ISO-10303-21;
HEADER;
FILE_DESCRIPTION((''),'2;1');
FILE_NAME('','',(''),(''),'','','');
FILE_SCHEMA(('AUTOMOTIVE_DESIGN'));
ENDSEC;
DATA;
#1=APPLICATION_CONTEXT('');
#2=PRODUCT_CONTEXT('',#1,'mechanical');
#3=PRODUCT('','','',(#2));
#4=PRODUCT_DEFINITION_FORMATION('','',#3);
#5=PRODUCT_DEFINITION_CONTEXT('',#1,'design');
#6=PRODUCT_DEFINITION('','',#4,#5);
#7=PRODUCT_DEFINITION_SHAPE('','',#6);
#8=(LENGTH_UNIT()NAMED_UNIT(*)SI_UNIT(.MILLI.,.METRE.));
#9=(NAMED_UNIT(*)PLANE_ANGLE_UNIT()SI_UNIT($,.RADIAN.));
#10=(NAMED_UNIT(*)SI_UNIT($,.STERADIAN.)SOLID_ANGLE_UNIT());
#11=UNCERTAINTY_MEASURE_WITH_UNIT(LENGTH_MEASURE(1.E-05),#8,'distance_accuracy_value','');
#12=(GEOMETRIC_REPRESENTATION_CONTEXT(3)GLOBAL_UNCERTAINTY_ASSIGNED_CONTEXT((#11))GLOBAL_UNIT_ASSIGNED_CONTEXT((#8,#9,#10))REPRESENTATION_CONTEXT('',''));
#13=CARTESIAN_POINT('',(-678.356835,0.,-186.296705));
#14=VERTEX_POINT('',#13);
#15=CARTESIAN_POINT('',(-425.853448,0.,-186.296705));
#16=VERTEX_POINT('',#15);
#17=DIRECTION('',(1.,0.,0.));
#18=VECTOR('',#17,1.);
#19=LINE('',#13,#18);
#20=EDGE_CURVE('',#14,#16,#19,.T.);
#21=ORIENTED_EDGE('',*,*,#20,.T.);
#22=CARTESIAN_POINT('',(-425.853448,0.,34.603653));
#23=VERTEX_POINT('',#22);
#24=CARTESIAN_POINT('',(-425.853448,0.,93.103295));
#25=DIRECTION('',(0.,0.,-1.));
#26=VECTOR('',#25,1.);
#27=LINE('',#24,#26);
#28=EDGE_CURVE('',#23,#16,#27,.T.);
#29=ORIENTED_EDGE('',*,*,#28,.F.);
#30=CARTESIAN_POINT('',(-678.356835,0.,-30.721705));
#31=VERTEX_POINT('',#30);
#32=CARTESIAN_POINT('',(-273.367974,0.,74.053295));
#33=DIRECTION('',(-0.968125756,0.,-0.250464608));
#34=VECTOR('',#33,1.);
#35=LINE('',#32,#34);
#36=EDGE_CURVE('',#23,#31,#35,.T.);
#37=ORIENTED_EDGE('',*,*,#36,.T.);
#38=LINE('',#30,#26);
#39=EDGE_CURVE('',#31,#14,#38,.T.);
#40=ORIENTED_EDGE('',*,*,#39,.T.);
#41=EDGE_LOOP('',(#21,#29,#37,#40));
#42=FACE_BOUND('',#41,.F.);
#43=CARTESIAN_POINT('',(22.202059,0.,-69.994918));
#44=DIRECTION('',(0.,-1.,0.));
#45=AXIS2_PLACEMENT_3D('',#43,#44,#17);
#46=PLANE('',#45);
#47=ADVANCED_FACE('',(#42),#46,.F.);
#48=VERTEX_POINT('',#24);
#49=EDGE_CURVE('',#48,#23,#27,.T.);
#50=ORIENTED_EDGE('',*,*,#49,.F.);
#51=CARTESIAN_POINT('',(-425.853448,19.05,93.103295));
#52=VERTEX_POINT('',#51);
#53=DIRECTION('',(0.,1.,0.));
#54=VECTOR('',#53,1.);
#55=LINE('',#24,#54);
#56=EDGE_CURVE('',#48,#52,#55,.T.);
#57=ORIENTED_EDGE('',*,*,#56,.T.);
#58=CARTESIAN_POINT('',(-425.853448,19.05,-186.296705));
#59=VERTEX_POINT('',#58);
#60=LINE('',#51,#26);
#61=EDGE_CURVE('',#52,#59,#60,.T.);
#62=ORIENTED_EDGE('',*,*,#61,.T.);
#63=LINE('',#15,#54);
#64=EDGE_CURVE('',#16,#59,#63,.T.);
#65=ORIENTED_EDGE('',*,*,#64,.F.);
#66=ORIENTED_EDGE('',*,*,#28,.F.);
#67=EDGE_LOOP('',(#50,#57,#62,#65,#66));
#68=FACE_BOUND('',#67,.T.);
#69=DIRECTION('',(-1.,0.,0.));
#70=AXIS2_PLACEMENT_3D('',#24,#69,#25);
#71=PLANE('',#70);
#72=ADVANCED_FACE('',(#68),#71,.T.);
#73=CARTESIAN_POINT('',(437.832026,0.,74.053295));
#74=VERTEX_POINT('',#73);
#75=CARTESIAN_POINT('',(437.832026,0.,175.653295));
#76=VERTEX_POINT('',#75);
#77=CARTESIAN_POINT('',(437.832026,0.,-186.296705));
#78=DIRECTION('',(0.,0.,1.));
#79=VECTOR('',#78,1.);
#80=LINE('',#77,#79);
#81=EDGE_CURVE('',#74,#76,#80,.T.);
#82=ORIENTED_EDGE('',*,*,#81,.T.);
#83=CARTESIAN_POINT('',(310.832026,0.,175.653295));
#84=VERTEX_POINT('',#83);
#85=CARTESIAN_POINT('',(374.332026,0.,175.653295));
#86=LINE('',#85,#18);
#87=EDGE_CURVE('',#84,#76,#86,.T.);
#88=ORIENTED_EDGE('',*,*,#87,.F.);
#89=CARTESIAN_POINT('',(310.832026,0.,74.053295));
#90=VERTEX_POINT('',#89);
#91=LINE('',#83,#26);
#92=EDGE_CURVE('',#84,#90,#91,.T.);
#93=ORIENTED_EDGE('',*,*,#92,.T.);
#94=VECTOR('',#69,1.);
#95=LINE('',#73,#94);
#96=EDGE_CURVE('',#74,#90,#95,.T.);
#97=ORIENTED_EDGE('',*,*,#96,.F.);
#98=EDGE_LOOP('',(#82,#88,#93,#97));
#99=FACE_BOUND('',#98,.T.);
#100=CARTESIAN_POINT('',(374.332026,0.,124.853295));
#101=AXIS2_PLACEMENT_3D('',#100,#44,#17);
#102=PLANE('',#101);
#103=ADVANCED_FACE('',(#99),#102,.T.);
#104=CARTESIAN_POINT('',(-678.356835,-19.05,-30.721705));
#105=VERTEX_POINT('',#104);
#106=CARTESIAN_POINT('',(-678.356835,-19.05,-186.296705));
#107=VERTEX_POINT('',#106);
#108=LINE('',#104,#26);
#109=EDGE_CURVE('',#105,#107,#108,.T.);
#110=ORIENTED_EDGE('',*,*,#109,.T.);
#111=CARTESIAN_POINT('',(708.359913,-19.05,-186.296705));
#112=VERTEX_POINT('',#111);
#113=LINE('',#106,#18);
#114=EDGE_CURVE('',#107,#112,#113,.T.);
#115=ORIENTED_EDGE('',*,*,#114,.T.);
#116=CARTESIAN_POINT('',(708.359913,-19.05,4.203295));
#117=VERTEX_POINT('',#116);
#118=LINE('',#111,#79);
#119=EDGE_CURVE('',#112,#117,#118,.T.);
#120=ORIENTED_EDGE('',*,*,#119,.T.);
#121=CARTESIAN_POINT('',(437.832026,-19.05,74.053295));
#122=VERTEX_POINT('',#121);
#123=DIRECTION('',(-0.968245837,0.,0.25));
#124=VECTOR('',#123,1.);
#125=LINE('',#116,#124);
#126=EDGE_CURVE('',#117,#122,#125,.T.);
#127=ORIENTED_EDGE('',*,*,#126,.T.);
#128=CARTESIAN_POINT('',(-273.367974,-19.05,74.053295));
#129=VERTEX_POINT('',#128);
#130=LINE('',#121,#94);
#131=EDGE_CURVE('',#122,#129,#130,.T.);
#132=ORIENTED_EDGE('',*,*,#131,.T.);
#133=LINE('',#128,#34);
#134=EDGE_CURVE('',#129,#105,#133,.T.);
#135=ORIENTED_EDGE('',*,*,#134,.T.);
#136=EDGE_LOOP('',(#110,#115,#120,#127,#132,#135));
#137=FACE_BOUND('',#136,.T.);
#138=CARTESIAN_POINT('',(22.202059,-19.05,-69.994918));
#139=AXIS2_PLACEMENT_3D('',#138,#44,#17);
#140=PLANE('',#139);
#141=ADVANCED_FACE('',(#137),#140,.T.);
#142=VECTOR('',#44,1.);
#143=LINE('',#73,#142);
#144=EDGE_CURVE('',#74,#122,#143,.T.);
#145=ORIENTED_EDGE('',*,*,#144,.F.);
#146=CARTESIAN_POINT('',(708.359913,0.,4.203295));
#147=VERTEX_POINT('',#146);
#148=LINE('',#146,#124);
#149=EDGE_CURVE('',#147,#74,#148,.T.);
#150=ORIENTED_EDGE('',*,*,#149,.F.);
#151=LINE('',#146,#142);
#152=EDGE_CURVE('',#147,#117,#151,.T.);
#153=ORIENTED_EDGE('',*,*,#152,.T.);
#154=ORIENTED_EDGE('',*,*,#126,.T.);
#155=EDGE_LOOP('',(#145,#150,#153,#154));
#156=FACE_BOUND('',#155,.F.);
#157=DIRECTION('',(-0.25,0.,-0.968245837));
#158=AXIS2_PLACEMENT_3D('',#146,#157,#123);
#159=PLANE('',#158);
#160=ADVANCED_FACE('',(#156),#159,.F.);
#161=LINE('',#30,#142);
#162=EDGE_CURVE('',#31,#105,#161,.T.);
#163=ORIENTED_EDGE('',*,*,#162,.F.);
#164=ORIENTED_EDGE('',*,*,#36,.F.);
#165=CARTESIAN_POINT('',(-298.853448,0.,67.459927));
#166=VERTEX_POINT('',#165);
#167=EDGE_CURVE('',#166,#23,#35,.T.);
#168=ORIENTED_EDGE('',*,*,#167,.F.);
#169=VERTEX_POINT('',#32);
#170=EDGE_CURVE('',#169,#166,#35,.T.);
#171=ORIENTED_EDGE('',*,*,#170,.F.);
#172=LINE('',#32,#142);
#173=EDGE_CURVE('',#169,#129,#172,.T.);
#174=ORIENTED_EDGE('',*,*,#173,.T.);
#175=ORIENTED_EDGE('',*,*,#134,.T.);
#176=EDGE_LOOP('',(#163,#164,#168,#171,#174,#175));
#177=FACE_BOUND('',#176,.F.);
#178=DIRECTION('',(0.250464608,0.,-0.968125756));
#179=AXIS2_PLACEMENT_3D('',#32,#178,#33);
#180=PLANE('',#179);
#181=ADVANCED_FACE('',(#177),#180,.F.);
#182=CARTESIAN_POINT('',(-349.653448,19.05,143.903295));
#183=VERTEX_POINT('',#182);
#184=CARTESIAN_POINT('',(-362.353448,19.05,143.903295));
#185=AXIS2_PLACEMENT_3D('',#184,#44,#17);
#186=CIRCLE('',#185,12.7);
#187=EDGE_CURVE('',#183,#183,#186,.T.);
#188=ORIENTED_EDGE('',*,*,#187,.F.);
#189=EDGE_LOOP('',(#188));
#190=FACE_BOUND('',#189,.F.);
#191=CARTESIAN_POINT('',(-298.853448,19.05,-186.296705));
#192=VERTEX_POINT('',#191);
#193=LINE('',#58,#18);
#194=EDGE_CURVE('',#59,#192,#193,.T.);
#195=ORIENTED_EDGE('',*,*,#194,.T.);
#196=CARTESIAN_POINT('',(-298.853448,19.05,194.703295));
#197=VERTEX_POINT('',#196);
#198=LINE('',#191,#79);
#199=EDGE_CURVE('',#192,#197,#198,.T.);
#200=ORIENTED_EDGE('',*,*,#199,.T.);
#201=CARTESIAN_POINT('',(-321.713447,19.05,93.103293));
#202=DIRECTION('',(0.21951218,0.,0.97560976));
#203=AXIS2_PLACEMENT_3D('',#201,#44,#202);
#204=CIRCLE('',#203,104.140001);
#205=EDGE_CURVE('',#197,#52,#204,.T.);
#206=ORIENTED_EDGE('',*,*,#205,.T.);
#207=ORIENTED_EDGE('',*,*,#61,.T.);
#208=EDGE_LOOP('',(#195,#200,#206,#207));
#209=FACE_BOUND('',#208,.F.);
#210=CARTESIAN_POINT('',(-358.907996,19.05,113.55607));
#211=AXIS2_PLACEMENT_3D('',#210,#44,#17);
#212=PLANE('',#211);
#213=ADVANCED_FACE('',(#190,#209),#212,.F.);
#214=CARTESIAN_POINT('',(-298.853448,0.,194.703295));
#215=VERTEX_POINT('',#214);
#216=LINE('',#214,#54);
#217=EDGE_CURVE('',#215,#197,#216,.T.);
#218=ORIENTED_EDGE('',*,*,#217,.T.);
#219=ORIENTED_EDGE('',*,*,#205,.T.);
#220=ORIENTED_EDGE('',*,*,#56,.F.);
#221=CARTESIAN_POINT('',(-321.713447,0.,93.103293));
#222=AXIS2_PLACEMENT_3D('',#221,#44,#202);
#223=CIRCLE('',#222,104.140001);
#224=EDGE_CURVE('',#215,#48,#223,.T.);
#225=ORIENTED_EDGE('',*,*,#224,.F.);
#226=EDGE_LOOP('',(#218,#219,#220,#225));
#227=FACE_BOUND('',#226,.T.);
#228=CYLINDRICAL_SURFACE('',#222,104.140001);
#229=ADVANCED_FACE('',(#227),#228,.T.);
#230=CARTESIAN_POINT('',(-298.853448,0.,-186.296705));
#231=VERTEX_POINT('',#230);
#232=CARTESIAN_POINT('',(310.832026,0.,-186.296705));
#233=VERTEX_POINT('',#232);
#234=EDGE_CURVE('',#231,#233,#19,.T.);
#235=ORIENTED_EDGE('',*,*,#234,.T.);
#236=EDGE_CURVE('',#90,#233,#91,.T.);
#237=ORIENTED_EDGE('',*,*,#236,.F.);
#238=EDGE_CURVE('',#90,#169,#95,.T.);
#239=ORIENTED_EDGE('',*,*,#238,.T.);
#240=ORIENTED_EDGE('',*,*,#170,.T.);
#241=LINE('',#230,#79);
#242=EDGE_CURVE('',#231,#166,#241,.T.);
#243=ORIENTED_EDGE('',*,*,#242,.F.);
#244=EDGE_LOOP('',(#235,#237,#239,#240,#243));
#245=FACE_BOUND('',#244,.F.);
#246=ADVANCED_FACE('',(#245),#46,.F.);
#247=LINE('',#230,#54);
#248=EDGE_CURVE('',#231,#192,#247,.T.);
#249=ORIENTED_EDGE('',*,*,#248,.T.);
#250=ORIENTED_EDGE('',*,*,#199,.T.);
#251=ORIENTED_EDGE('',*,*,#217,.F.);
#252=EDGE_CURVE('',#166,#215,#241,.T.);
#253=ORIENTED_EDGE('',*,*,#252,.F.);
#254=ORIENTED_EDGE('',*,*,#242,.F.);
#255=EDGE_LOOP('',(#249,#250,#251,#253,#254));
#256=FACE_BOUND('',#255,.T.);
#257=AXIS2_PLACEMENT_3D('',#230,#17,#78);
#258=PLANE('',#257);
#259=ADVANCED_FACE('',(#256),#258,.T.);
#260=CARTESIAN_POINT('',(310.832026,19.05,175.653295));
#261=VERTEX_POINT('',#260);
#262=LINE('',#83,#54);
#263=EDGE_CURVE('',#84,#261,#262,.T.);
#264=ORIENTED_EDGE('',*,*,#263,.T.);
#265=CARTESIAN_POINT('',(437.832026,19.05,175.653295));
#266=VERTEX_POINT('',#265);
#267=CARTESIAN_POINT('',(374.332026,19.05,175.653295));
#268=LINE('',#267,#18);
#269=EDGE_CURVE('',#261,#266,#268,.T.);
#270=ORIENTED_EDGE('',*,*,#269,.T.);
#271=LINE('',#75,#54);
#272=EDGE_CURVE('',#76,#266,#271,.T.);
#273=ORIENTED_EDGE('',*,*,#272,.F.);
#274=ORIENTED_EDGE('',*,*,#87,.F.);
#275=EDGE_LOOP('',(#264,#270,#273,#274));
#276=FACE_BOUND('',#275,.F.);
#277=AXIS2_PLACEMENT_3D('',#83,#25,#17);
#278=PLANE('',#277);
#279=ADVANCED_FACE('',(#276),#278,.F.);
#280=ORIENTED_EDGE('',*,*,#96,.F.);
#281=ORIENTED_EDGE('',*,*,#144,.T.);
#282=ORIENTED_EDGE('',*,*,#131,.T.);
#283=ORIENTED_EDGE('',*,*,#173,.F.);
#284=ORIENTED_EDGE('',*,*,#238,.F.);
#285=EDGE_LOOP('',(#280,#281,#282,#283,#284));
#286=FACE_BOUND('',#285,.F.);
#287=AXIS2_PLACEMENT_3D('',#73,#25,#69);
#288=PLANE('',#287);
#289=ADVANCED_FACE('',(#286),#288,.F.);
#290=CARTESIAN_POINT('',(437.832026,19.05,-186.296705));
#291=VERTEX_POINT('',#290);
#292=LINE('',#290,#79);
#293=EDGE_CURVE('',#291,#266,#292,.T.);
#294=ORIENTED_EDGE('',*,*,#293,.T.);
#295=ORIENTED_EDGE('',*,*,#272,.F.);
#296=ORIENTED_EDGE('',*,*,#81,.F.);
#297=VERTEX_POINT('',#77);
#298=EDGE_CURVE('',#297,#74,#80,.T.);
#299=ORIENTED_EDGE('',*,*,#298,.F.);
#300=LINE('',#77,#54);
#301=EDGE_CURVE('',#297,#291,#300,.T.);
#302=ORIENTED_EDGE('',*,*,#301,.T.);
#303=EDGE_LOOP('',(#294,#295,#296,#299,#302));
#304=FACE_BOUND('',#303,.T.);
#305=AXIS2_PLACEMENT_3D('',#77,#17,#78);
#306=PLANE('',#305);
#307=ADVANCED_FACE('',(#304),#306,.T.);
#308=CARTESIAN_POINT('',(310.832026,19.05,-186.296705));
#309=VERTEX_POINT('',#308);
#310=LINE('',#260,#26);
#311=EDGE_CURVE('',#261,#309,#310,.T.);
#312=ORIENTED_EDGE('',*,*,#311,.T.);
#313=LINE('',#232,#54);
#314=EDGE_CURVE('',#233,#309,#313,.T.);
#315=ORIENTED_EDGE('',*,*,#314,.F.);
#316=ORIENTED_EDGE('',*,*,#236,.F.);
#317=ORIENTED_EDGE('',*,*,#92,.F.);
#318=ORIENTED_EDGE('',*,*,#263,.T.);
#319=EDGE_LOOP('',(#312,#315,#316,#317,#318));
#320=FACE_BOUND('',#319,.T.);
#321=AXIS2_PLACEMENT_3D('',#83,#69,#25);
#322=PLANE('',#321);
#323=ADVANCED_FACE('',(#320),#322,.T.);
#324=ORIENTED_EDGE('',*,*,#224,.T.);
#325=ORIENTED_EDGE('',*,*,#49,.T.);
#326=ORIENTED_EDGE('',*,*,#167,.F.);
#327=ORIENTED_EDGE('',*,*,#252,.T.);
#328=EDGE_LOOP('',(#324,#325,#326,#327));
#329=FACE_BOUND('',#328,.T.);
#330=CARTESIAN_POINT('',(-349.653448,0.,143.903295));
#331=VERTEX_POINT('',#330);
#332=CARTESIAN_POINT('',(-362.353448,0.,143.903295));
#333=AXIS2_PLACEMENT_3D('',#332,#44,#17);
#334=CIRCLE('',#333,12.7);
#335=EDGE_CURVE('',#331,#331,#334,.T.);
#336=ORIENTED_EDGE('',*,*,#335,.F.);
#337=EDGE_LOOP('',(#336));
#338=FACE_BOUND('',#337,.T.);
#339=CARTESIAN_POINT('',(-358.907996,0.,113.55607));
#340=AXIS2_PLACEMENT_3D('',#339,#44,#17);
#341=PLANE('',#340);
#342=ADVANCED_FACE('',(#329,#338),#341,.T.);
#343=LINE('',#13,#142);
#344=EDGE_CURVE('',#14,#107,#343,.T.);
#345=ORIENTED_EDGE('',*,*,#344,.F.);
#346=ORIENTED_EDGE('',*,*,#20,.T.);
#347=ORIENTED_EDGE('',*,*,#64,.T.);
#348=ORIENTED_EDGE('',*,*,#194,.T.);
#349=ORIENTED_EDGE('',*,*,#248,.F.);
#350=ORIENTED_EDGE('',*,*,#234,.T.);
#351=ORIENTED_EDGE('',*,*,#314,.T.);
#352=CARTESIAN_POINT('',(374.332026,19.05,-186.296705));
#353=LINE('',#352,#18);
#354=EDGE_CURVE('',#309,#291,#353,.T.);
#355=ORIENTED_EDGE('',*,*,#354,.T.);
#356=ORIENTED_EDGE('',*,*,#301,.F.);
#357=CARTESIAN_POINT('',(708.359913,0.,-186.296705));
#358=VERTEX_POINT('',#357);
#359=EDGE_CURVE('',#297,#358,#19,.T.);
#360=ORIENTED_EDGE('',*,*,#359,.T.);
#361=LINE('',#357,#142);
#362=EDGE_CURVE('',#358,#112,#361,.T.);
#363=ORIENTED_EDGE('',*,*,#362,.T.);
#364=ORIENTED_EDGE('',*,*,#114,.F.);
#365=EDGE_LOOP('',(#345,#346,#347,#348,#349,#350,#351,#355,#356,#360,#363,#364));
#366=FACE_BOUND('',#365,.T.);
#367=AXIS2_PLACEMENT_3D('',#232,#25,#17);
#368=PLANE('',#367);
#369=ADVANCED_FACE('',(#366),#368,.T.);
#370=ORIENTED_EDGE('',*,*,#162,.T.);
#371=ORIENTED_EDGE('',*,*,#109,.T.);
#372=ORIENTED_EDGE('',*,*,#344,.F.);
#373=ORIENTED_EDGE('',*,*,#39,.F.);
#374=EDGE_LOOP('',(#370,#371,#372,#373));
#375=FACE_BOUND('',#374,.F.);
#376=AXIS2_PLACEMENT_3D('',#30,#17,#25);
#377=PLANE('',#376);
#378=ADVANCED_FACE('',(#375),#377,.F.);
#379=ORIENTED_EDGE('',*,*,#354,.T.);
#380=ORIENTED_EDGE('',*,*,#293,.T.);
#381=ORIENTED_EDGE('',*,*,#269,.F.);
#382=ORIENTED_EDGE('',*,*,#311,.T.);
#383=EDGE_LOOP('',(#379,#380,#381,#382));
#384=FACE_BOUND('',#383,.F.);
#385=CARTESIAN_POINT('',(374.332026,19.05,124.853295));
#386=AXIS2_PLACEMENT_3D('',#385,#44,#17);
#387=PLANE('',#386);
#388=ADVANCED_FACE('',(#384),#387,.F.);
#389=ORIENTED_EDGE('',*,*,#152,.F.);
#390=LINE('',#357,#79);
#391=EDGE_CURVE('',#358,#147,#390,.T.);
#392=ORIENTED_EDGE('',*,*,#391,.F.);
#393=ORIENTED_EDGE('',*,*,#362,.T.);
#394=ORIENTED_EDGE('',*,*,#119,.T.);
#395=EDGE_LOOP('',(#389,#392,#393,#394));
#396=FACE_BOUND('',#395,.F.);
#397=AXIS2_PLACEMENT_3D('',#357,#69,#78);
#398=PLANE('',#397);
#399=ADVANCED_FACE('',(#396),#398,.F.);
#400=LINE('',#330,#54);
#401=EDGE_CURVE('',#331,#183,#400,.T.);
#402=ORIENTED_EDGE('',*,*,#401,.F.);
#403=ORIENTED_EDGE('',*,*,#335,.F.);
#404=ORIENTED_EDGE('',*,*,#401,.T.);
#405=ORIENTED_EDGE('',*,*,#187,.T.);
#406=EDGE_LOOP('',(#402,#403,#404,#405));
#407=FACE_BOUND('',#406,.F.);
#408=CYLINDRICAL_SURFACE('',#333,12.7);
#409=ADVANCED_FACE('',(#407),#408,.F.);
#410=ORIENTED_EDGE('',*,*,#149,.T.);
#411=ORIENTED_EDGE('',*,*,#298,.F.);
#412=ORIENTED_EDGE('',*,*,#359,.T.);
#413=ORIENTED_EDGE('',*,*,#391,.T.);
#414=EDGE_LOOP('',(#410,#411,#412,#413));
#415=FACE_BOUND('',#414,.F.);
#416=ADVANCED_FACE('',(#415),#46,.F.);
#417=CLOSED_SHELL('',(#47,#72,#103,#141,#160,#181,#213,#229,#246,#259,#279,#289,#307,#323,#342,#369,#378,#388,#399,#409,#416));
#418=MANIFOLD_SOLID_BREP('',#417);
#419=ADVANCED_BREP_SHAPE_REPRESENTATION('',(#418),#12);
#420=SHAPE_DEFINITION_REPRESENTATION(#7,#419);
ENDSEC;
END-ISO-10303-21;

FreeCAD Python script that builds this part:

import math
import FreeCAD as App
import Part
import Sketcher

V = App.Vector
Q = App.Units.Quantity

doc = App.newDocument("Part")
body = doc.addObject("PartDesign::Body", "Body")

# Sketch on XZ plane
sketch1 = body.newObject("Sketcher::SketchObject", "Sketch")
sketch1.AttachmentSupport = (doc.getObject("XZ_Plane"), [""])
sketch1.MapMode = "FlatFace"
sketch1.addGeometry([
    Part.LineSegment(V(-678, -31, 0), V(-678, -186, 0)),  # 0
    Part.LineSegment(V(-678, -186, 0), V(708, -186, 0)),  # 1
    Part.LineSegment(V(708, -186, 0), V(708, 4, 0)),  # 2
    Part.LineSegment(V(708, 4, 0), V(438, 74, 0)),  # 3
    Part.LineSegment(V(438, 74, 0), V(-273, 74, 0)),  # 4
    Part.LineSegment(V(-273, 74, 0), V(-678, -31, 0)),  # 5
], False)
sketch1.addConstraint([
    Sketcher.Constraint("Coincident", 0, 2, 1, 1),
    Sketcher.Constraint("Coincident", 1, 2, 2, 1),
    Sketcher.Constraint("Coincident", 2, 2, 3, 1),
    Sketcher.Constraint("Coincident", 3, 2, 4, 1),
    Sketcher.Constraint("Coincident", 4, 2, 5, 1),
    Sketcher.Constraint("Coincident", 5, 2, 0, 1),
    Sketcher.Constraint("Vertical", 0),
    Sketcher.Constraint("Horizontal", 1),
    Sketcher.Constraint("Vertical", 2),
    Sketcher.Constraint("Horizontal", 4),
    Sketcher.Constraint("DistanceX", 4, 2, 4, 1, Q("28 in")),
    Sketcher.Constraint("Distance", 3, Q("11 in")),
    Sketcher.Constraint("DistanceY", 2, 1, 2, 2, Q("7.5 in")),
    Sketcher.Constraint("DistanceY", 0, 2, 0, 1, Q("6.125 in")),
    Sketcher.Constraint("DistanceY", 2, 2, 3, 2, Q("2.75 in")),
    Sketcher.Constraint("DistanceX", 1, 1, 1, 2, Q("1386.716748 mm")),
    Sketcher.Constraint("DistanceX", 0, 2, -1, 1, Q("678.356835 mm")),
    Sketcher.Constraint("DistanceY", 0, 2, -1, 1, Q("186.296705 mm")),
])
pad1 = body.newObject("PartDesign::Pad", "Pad")
pad1.Profile = sketch1
pad1.Length = Q("0.75 in")

# Sketch on XZ plane
sketch2 = body.newObject("Sketcher::SketchObject", "Sketch001")
sketch2.AttachmentSupport = (doc.getObject("XZ_Plane"), [""])
sketch2.MapMode = "FlatFace"
sketch2.addGeometry([
    Part.LineSegment(V(-426, 93, 0), V(-426, -186, 0)),  # 0
    Part.LineSegment(V(-426, -186, 0), V(-299, -186, 0)),  # 1
    Part.LineSegment(V(-299, -186, 0), V(-299, 195, 0)),  # 2
    Part.ArcOfCircle(Part.Circle(V(-322, 93, 0), V(0, 0, 1), 104), math.radians(77), math.radians(180)),  # 3
    Part.Circle(V(-362, 144, 0), V(0, 0, 1), 13),  # 4
], False)
sketch2.addConstraint([
    Sketcher.Constraint("Coincident", 0, 2, 1, 1),
    Sketcher.Constraint("Coincident", 1, 2, 2, 1),
    Sketcher.Constraint("Coincident", 2, 2, 3, 1),
    Sketcher.Constraint("Tangent", 3, 2, 0, 1),
    Sketcher.Constraint("Vertical", 0),
    Sketcher.Constraint("Horizontal", 1),
    Sketcher.Constraint("Vertical", 2),
    Sketcher.Constraint("Diameter", 4, Q("1 in")),
    Sketcher.Constraint("Radius", 3, Q("4.1000001 in")),
    Sketcher.Constraint("DistanceX", 1, 1, 1, 2, Q("5 in")),
    Sketcher.Constraint("DistanceY", 0, 2, 0, 1, Q("11 in")),
    Sketcher.Constraint("DistanceY", 3, 3, 4, 3, Q("2.0000001 in")),
    Sketcher.Constraint("DistanceX", 4, 3, 3, 3, Q("1.6000001 in")),
    Sketcher.Constraint("DistanceX", 4, 3, -1, 1, Q("362.353448 mm")),
    Sketcher.Constraint("DistanceY", -1, 1, 3, 3, Q("93.103293 mm")),
])
pad2 = body.newObject("PartDesign::Pad", "Pad001")
pad2.Profile = sketch2
pad2.Length = Q("0.75 in")
pad2.Reversed = True

# Sketch on XZ plane
sketch3 = body.newObject("Sketcher::SketchObject", "Sketch002")
sketch3.AttachmentSupport = (doc.getObject("XZ_Plane"), [""])
sketch3.MapMode = "FlatFace"
sketch3.addGeometry([
    Part.LineSegment(V(311, 176, 0), V(311, -186, 0)),
    Part.LineSegment(V(311, -186, 0), V(438, -186, 0)),
    Part.LineSegment(V(438, -186, 0), V(438, 176, 0)),
    Part.LineSegment(V(438, 176, 0), V(311, 176, 0)),
], False)
sketch3.addConstraint([
    Sketcher.Constraint("Coincident", 0, 2, 1, 1),
    Sketcher.Constraint("Coincident", 1, 2, 2, 1),
    Sketcher.Constraint("Coincident", 2, 2, 3, 1),
    Sketcher.Constraint("Coincident", 3, 2, 0, 1),
    Sketcher.Constraint("Vertical", 0),
    Sketcher.Constraint("Horizontal", 1),
    Sketcher.Constraint("Vertical", 2),
    Sketcher.Constraint("Horizontal", 3),
    Sketcher.Constraint("DistanceX", 1, 1, 1, 2, Q("5 in")),
    Sketcher.Constraint("DistanceY", 0, 2, 0, 1, Q("14.25 in")),
    Sketcher.Constraint("DistanceX", -1, 1, 0, 2, Q("310.832026 mm")),
    Sketcher.Constraint("DistanceY", 0, 2, -1, 1, Q("186.296705 mm")),
])
pad3 = body.newObject("PartDesign::Pad", "Pad002")
pad3.Profile = sketch3
pad3.Length = Q("0.75 in")
pad3.Reversed = True

doc.recompute()
